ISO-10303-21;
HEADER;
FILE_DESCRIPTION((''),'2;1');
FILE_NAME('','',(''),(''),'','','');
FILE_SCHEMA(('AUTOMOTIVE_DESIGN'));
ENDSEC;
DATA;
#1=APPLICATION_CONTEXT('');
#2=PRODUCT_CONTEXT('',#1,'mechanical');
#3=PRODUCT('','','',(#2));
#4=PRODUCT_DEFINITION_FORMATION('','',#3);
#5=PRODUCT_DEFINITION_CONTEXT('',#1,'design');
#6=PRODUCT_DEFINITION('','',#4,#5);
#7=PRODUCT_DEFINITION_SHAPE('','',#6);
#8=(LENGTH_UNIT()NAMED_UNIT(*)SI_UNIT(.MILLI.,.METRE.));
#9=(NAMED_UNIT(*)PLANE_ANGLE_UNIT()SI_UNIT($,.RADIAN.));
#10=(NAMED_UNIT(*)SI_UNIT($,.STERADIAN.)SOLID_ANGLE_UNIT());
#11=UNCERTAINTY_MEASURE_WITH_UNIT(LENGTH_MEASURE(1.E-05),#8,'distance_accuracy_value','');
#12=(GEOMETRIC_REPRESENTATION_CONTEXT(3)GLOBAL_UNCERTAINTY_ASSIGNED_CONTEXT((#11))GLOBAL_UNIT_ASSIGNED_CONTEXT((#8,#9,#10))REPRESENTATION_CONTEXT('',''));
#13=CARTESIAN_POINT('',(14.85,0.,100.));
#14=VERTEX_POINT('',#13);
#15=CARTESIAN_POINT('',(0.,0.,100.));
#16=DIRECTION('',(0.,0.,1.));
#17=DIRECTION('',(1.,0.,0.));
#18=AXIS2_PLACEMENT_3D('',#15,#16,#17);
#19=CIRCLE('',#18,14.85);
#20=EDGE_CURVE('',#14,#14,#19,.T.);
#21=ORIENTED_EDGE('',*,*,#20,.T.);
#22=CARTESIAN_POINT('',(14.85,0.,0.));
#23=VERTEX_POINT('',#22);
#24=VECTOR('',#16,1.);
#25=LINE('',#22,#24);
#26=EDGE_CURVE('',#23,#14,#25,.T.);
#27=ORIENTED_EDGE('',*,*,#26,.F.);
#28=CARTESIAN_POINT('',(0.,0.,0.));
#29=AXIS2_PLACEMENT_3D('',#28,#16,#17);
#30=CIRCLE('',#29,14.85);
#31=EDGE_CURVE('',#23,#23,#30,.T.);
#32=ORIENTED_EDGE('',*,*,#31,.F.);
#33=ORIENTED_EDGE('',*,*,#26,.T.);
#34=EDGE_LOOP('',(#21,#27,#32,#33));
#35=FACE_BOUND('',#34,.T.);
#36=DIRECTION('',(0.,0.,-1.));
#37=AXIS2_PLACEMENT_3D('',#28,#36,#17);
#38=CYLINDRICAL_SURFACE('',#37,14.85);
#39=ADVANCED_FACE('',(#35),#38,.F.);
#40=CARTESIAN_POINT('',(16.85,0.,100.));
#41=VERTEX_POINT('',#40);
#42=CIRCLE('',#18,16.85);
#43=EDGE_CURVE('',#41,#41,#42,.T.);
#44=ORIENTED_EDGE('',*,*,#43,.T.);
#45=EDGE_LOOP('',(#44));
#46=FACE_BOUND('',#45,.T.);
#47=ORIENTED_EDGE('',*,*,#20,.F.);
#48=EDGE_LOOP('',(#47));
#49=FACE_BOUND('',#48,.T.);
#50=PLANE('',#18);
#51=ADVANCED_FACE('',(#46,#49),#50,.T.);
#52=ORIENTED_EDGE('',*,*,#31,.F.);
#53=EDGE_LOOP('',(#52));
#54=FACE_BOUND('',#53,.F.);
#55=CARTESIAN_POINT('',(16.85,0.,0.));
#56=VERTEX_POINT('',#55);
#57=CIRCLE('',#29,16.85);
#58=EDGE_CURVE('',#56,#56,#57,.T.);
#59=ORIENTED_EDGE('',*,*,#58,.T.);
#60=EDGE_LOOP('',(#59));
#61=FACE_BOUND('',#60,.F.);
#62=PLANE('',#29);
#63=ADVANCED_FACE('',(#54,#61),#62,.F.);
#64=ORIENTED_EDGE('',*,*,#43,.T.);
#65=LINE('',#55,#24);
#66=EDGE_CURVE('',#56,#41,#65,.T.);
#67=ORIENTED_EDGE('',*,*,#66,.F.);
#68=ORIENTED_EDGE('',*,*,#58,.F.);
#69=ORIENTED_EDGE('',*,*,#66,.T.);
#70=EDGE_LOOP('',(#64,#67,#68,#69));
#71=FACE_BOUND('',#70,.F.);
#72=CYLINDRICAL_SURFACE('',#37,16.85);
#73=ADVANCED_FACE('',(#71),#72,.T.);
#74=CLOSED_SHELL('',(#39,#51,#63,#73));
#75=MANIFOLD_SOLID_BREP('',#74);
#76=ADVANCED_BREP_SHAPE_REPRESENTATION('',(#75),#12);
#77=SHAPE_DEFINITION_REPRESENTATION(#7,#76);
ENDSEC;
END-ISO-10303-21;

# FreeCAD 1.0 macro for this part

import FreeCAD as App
import Part
import Sketcher
from FreeCAD import Vector

doc = App.newDocument("Part")
body = doc.addObject("PartDesign::Body", "Body")

# Sketch on XY plane
sketch1 = doc.addObject("Sketcher::SketchObject", "Sketch")
body.addObject(sketch1)
sketch1.AttachmentSupport = (doc.XY_Plane, [""])
sketch1.MapMode = "FlatFace"
sketch1.addGeometry([
    Part.Circle(Vector(0, 0, 0), Vector(0, 0, 1), 17),
    Part.Circle(Vector(0, 0, 0), Vector(0, 0, 1), 15),
], False)
sketch1.addConstraint([
    Sketcher.Constraint("Coincident", 0, 3, -1, 1),
    Sketcher.Constraint("Coincident", 1, 3, -1, 1),
    Sketcher.Constraint("Diameter", 0, 33.7),
    Sketcher.Constraint("Diameter", 1, 29.7),
])
pad1 = doc.addObject("PartDesign::Pad", "Pad")
body.addObject(pad1)
pad1.Profile = sketch1
pad1.Length = 100

doc.recompute()
